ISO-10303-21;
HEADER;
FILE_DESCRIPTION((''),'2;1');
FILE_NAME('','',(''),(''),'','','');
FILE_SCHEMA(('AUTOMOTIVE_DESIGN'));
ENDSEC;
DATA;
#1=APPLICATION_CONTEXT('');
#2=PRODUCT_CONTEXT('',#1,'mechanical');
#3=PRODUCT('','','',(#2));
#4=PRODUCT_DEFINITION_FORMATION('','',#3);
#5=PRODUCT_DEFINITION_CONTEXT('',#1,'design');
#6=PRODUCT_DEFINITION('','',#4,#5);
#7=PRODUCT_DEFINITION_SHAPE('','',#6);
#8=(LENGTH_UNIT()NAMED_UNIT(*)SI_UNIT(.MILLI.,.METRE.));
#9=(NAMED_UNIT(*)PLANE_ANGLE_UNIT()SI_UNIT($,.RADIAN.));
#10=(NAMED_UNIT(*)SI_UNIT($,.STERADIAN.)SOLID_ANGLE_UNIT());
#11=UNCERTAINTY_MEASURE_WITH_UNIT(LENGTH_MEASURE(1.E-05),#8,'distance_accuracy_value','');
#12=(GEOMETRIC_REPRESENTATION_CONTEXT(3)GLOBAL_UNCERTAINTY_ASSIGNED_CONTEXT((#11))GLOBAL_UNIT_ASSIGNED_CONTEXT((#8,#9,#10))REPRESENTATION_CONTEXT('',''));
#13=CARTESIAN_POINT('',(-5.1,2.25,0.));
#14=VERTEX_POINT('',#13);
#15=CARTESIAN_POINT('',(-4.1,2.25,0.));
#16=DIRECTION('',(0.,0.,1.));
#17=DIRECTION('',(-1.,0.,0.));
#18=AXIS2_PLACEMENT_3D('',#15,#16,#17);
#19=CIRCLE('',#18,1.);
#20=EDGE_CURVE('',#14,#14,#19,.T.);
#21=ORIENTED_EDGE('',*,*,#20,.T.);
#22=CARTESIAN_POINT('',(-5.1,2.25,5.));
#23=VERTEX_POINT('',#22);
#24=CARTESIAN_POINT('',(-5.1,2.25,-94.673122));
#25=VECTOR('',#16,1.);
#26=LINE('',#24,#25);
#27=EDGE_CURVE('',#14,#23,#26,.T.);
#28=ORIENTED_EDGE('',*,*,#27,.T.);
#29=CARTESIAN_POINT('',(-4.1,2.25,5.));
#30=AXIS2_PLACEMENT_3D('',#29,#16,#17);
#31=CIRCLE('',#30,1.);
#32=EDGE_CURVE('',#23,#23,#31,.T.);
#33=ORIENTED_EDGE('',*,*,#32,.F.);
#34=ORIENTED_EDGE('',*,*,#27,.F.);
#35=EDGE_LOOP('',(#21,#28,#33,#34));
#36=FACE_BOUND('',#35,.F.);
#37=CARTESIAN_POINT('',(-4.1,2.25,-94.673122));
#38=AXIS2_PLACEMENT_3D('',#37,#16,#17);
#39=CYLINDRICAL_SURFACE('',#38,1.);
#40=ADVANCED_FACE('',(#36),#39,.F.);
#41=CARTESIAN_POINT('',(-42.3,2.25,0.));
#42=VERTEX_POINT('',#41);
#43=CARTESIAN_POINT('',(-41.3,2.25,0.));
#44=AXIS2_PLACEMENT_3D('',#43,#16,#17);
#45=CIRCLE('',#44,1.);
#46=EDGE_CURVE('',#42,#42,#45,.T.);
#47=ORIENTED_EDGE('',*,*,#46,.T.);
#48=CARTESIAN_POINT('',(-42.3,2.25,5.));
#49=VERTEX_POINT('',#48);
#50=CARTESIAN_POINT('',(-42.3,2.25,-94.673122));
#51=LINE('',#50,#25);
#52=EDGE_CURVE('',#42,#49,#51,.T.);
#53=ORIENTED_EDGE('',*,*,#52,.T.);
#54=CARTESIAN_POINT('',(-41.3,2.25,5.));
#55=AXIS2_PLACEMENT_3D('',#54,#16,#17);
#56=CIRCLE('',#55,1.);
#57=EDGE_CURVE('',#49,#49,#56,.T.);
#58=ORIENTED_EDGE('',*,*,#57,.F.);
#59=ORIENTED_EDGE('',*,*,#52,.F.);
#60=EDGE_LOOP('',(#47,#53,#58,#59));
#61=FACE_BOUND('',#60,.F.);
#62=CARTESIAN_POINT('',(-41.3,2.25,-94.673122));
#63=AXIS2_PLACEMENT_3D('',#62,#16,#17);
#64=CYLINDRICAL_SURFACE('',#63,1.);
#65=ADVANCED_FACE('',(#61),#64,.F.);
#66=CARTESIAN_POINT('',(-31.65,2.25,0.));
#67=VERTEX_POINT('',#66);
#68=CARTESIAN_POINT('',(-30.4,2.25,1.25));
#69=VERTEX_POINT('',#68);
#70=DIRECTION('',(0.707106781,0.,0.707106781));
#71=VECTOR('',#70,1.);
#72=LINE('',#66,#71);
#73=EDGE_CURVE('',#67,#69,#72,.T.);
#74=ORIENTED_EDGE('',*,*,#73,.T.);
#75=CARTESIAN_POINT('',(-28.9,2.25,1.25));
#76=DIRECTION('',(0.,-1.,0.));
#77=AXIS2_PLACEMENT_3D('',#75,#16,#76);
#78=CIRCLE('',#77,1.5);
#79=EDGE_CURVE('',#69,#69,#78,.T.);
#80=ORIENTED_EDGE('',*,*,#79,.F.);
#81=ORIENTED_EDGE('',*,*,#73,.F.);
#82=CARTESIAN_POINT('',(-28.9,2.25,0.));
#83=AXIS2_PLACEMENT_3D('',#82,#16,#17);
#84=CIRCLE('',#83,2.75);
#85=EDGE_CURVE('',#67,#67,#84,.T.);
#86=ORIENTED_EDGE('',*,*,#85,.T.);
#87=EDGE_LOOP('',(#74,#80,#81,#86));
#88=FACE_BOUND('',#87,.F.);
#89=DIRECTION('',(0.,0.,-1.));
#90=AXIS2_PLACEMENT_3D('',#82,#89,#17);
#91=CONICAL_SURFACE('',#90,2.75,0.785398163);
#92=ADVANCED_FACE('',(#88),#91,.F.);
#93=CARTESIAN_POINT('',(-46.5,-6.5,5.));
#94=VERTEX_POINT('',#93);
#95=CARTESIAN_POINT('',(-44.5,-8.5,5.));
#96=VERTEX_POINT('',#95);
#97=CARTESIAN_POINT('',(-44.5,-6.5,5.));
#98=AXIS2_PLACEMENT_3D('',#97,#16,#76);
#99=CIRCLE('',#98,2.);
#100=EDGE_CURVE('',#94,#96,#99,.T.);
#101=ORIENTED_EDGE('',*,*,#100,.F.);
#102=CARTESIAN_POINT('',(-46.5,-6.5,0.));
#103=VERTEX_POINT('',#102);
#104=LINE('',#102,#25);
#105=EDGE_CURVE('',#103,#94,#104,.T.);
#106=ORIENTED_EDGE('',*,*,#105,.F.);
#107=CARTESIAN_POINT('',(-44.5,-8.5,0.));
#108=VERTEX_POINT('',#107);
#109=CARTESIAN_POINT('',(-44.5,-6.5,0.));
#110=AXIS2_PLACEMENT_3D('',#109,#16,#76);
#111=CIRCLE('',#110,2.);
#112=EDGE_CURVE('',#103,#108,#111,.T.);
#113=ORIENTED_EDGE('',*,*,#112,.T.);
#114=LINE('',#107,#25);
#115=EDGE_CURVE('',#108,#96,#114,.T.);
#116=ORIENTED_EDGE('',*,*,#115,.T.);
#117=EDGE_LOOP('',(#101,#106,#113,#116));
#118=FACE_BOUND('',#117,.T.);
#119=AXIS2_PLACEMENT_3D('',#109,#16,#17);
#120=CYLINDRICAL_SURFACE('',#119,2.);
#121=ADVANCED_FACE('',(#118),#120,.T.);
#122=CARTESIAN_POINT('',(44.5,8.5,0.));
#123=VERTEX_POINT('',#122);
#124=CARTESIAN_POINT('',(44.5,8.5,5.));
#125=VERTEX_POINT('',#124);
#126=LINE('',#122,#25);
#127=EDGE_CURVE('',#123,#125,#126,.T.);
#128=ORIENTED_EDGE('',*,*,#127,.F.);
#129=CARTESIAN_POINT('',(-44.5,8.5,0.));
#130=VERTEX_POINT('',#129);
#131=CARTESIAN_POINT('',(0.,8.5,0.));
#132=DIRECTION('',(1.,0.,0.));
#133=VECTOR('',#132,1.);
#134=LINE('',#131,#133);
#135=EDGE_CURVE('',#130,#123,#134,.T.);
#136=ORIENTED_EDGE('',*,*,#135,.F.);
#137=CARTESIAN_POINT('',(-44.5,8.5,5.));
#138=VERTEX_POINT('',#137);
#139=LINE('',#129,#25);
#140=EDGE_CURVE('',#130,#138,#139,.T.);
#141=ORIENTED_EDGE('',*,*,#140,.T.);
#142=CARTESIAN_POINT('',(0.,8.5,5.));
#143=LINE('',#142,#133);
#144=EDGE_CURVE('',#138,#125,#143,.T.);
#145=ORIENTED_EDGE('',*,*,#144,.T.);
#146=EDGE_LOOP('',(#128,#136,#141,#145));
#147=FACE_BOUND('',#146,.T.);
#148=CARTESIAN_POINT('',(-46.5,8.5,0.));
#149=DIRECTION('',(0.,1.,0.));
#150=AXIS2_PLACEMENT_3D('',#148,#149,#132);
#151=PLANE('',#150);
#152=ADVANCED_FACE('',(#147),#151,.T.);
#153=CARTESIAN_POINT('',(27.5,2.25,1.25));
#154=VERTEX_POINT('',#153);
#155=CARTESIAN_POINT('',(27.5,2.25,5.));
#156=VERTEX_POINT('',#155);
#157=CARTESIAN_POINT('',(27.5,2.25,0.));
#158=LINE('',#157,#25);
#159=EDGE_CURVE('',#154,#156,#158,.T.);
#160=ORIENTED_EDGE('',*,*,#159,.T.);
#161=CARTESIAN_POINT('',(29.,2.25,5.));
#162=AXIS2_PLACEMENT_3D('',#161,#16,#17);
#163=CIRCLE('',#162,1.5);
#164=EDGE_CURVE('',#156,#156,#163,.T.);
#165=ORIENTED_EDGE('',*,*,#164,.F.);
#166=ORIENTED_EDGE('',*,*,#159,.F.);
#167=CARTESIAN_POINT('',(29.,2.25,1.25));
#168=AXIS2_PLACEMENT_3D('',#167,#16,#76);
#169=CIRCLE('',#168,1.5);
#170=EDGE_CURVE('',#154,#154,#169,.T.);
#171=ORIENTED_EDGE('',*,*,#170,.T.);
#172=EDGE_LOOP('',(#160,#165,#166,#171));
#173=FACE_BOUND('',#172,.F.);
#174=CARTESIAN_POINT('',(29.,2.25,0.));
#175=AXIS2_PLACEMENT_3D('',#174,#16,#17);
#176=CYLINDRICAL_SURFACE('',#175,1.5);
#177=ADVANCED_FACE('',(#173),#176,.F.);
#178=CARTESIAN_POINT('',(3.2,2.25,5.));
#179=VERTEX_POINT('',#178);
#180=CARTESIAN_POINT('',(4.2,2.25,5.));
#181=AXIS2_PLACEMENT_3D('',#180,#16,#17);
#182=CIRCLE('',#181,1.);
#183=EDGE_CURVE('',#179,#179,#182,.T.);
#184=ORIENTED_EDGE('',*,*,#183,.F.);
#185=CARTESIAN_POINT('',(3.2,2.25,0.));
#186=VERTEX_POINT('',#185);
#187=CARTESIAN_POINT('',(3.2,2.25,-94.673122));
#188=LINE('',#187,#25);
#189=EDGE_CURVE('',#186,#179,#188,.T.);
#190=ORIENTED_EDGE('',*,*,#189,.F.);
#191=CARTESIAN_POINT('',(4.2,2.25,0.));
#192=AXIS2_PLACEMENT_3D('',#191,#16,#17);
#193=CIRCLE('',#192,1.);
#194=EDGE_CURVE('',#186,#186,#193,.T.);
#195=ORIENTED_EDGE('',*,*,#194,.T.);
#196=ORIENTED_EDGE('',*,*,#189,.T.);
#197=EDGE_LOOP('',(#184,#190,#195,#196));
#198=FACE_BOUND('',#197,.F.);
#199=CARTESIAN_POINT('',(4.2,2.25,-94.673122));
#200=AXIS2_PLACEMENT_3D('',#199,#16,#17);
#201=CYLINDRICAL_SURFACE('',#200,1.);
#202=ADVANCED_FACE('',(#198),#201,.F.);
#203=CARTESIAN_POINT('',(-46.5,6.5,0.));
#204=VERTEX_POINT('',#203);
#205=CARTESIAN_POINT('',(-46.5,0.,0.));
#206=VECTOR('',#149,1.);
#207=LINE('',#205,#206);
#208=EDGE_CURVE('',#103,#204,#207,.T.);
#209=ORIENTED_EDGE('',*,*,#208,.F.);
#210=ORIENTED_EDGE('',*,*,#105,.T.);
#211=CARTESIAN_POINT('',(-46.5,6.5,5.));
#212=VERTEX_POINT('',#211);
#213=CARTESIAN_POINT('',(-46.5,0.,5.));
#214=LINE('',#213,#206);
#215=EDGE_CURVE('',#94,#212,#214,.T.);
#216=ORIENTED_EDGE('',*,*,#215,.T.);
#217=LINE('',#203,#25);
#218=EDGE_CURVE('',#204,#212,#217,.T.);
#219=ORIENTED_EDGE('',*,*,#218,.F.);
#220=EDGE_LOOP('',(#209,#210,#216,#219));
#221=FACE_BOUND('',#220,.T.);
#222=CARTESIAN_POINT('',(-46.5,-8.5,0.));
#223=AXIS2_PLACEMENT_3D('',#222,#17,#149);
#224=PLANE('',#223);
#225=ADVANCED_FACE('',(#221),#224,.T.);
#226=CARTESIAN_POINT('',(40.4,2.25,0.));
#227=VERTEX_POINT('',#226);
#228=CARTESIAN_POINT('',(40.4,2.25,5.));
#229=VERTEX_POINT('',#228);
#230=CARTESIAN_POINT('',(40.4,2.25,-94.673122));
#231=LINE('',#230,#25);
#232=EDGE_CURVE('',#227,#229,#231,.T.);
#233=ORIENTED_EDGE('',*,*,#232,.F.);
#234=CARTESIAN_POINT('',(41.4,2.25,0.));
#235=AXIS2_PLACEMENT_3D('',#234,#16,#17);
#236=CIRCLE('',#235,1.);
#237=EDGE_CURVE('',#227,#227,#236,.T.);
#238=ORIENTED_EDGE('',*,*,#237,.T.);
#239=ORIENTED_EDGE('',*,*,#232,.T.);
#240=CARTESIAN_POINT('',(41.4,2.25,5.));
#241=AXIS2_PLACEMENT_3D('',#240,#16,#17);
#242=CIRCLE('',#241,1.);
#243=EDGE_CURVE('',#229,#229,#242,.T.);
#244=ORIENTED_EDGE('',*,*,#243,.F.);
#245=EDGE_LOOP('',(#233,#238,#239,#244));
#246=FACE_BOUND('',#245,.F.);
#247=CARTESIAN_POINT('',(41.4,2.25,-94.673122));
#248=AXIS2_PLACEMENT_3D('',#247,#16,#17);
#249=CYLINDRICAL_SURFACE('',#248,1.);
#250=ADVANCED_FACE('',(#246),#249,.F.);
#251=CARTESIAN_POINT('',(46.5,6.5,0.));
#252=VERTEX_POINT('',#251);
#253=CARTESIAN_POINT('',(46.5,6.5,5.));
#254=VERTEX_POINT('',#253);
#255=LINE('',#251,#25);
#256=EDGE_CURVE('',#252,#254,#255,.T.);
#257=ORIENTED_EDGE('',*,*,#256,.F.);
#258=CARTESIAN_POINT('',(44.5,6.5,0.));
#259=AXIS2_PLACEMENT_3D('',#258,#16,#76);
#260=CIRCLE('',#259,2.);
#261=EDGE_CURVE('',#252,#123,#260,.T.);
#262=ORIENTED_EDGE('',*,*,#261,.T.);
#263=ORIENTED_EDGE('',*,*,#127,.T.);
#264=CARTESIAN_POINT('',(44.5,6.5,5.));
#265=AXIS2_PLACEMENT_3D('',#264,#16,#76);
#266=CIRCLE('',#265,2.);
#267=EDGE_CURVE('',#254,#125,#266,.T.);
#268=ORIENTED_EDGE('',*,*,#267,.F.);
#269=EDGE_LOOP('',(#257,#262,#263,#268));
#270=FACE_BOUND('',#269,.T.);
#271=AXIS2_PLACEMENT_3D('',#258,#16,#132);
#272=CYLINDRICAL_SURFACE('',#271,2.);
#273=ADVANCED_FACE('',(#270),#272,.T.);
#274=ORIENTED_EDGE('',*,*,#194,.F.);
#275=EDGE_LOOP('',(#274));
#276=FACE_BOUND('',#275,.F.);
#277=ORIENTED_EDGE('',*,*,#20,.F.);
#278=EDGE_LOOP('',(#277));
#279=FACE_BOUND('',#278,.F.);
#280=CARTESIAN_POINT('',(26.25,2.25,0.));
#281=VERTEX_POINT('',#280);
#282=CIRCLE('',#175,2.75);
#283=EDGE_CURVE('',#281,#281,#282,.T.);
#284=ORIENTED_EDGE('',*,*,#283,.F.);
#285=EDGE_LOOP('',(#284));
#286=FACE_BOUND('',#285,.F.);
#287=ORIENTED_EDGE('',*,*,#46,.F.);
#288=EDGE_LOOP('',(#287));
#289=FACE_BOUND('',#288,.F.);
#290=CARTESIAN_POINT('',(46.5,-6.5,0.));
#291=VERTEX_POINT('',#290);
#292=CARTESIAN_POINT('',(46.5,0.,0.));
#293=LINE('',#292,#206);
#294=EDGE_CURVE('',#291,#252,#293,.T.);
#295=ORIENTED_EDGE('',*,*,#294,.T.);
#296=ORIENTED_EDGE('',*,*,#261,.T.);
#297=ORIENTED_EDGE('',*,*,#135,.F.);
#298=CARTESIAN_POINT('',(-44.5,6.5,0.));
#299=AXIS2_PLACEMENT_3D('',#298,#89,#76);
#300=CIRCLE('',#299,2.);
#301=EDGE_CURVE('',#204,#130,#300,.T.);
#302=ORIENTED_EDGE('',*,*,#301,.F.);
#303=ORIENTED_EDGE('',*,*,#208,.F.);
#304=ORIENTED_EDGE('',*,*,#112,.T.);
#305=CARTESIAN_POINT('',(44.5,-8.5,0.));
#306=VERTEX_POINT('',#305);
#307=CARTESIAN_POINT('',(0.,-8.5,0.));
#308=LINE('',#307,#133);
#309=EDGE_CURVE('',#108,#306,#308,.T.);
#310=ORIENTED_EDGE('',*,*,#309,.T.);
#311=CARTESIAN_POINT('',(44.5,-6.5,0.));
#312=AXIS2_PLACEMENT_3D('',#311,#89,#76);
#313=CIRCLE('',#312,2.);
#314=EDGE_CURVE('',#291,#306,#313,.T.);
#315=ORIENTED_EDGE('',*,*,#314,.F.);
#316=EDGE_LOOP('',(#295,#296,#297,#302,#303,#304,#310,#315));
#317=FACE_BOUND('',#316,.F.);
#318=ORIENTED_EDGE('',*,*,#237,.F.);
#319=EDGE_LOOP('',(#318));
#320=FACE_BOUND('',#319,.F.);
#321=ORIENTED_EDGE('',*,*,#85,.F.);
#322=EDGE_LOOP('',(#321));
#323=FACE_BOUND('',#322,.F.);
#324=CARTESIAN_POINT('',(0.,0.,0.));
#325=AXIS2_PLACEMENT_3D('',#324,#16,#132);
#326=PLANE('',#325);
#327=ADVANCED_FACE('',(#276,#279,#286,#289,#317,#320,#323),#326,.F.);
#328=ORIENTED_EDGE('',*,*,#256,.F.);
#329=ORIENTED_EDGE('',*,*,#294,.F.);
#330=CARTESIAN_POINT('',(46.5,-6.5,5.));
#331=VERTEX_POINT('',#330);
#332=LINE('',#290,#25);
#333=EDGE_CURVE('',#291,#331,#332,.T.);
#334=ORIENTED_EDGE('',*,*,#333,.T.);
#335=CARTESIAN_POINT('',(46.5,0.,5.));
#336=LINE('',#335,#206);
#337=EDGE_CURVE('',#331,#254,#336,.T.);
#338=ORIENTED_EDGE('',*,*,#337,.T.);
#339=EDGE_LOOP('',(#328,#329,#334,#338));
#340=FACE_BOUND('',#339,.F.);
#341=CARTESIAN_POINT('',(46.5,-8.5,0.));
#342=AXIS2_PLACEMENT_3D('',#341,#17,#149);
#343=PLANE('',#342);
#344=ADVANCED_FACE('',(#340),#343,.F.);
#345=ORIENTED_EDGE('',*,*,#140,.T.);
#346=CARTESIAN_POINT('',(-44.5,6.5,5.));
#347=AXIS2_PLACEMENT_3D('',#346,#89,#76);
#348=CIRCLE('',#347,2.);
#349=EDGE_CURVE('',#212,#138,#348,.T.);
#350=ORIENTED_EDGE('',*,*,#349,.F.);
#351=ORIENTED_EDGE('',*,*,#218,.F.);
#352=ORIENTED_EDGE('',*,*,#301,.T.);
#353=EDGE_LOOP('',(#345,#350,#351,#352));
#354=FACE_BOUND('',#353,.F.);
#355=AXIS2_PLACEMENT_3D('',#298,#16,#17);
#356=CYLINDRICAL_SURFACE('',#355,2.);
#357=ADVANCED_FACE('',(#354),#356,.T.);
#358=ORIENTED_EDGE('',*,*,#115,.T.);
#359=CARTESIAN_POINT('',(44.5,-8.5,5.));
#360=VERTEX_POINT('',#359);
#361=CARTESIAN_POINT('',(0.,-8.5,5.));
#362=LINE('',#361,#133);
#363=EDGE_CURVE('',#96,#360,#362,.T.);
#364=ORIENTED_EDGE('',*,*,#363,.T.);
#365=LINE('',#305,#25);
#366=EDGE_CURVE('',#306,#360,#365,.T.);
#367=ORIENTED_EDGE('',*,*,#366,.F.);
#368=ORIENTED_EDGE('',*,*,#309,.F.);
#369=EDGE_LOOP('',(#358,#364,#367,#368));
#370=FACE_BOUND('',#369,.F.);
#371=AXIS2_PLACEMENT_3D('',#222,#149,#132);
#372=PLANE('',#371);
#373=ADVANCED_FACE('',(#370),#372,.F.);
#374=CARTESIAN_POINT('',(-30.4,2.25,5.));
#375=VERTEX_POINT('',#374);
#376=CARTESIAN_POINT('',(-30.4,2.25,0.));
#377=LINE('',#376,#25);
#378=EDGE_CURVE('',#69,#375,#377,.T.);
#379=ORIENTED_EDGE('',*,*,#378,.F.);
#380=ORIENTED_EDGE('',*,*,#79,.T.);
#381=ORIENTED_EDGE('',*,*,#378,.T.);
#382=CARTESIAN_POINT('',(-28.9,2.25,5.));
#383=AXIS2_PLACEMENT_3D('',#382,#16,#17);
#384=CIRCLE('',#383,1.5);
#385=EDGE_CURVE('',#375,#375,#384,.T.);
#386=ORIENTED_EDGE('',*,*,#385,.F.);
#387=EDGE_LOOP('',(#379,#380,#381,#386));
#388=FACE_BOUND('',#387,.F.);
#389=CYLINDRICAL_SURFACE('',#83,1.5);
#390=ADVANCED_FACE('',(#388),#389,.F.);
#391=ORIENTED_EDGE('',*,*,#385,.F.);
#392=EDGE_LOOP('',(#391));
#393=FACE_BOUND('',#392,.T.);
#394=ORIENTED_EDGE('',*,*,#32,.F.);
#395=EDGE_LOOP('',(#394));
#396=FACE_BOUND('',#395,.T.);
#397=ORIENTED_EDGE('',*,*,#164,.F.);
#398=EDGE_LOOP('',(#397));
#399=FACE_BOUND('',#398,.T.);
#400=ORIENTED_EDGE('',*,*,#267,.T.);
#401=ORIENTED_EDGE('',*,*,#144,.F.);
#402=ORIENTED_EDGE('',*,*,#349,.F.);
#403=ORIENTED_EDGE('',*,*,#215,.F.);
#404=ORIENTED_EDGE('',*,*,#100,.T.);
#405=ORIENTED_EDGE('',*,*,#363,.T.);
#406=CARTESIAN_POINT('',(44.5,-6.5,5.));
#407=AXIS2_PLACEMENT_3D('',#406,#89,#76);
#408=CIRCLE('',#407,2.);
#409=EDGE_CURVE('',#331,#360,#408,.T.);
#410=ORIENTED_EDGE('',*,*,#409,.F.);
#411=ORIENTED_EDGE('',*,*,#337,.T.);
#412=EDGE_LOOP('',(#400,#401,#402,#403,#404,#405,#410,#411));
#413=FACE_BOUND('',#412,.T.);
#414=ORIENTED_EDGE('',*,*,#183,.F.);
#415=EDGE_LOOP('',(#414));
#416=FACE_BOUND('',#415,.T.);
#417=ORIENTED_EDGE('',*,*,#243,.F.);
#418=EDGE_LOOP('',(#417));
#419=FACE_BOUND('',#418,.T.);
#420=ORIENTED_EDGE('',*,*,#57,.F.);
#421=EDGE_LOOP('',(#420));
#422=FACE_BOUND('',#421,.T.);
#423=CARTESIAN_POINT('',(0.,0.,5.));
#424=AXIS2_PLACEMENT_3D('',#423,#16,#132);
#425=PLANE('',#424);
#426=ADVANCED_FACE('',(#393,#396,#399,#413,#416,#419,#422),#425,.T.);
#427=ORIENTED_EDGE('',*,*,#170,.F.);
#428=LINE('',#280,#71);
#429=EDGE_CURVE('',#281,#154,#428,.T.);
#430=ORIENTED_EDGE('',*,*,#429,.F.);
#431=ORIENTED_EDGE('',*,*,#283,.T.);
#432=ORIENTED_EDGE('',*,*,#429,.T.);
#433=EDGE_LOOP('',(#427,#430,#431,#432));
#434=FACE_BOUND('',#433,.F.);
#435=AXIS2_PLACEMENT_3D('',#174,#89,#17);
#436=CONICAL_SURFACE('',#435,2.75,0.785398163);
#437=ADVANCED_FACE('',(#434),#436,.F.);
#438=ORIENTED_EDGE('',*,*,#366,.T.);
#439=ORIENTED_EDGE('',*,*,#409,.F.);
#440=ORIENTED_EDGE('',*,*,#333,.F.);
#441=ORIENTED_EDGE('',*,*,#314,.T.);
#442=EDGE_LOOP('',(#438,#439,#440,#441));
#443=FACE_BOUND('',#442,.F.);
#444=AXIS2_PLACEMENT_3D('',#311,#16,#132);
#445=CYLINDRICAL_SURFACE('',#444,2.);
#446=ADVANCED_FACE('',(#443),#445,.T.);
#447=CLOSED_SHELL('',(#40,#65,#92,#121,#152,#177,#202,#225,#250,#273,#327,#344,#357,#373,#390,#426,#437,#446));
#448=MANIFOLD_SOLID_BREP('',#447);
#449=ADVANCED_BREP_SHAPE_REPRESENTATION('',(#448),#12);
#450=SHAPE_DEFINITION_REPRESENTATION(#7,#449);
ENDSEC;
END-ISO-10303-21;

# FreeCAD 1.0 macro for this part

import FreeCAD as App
import Part
import Sketcher

V = App.Vector


def edges_at(feature, points):
    """Names of the edges that pass closest to the given points."""
    edges = feature.Shape.Edges
    near = lambda p: min(range(len(edges)), key=lambda i: edges[i].distToShape(Part.Vertex(*p))[0])
    return sorted({f"Edge{near(p) + 1}" for p in points})


def add_polygon(sketch, points):
    """Adds a closed chain of lines whose ends are joined by coincident constraints."""
    first, n = sketch.GeometryCount, len(points)
    for a, b in zip(points, points[1:] + points[:1]):
        sketch.addGeometry(Part.LineSegment(App.Vector(*a, 0), App.Vector(*b, 0)), False)
    for i in range(n):
        sketch.addConstraint(Sketcher.Constraint("Coincident", first + i, 2, first + (i + 1) % n, 1))

doc = App.newDocument("Part")
body = doc.addObject("PartDesign::Body", "Body")

# Sketch on XY plane
sketch1 = doc.addObject("Sketcher::SketchObject", "Sketch")
body.addObject(sketch1)
sketch1.AttachmentSupport = (doc.XY_Plane, [""])
sketch1.MapMode = "FlatFace"
add_polygon(sketch1, [(-46, 8), (-46, -8), (46, -8), (46, 8)])  # lines 0-3
sketch1.addConstraint(Sketcher.Constraint("Vertical", 0))
sketch1.addConstraint(Sketcher.Constraint("Horizontal", 1))
sketch1.addConstraint(Sketcher.Constraint("Vertical", 2))
sketch1.addConstraint(Sketcher.Constraint("Horizontal", 3))
sketch1.addConstraint(Sketcher.Constraint("Symmetric", 0, 2, 2, 2, -1, 1))
sketch1.addConstraint(Sketcher.Constraint("DistanceX", 1, 1, 1, 2, 93.0))
sketch1.addConstraint(Sketcher.Constraint("DistanceY", 0, 2, 0, 1, 17.0))
pad1 = doc.addObject("PartDesign::Pad", "Pad")
body.addObject(pad1)
pad1.Profile = sketch1
pad1.Length = 5

# Sketch on XY plane
sketch2 = doc.addObject("Sketcher::SketchObject", "Sketch001")
body.addObject(sketch2)
sketch2.AttachmentSupport = (doc.XY_Plane, [""])
sketch2.MapMode = "FlatFace"
sketch2.addGeometry(Part.Circle(V(-41.3, 2.2, 0), V(0, 0, 1), 1), False)
sketch2.addGeometry(Part.Circle(V(-4.1, 2.2, 0), V(0, 0, 1), 1), False)
sketch2.addGeometry(Part.Circle(V(4.2, 2.2, 0), V(0, 0, 1), 1), False)
sketch2.addGeometry(Part.Circle(V(41.4, 2.2, 0), V(0, 0, 1), 1), False)
sketch2.addConstraint(Sketcher.Constraint("Equal", 0, 1))
sketch2.addConstraint(Sketcher.Constraint("Equal", 1, 2))
sketch2.addConstraint(Sketcher.Constraint("Equal", 2, 3))
sketch2.addConstraint(Sketcher.Constraint("Horizontal", 0, 3, 1, 3))
sketch2.addConstraint(Sketcher.Constraint("Horizontal", 1, 3, 2, 3))
sketch2.addConstraint(Sketcher.Constraint("Horizontal", 2, 3, 3, 3))
sketch2.addConstraint(Sketcher.Constraint("Diameter", 0, 2.0))
sketch2.addConstraint(Sketcher.Constraint("DistanceX", 0, 3, -1, 1, 41.3))
sketch2.addConstraint(Sketcher.Constraint("DistanceX", 1, 3, -1, 1, 4.1))
sketch2.addConstraint(Sketcher.Constraint("DistanceX", -1, 1, 2, 3, 4.2))
sketch2.addConstraint(Sketcher.Constraint("DistanceX", -1, 1, 3, 3, 41.4))
sketch2.addConstraint(Sketcher.Constraint("DistanceY", -1, 1, 0, 3, 2.25))
doc.recompute()
hole = doc.addObject("PartDesign::Hole", "Hole")
body.addObject(hole)
hole.Profile = sketch2
hole.ThreadType = "None"
hole.Diameter = 2
hole.DepthType = "ThroughAll"
hole.Reversed = True

# Sketch on XY plane
sketch3 = doc.addObject("Sketcher::SketchObject", "Sketch002")
body.addObject(sketch3)
sketch3.AttachmentSupport = (doc.XY_Plane, [""])
sketch3.MapMode = "FlatFace"
sketch3.addGeometry(Part.Circle(V(29, 2.2, 0), V(0, 0, 1), 1.5), False)
sketch3.addGeometry(Part.Circle(V(-28.9, 2.2, 0), V(0, 0, 1), 1.5), False)
sketch3.addConstraint(Sketcher.Constraint("Equal", 0, 1))
sketch3.addConstraint(Sketcher.Constraint("Horizontal", 0, 3, 1, 3))
sketch3.addConstraint(Sketcher.Constraint("Diameter", 0, 3.0))
sketch3.addConstraint(Sketcher.Constraint("DistanceX", -1, 1, 0, 3, 29.0))
sketch3.addConstraint(Sketcher.Constraint("DistanceX", 1, 3, -1, 1, 28.9))
sketch3.addConstraint(Sketcher.Constraint("DistanceY", -1, 1, 0, 3, 2.25))
doc.recompute()
hole2 = doc.addObject("PartDesign::Hole", "Hole001")
body.addObject(hole2)
hole2.Profile = sketch3
hole2.ThreadType = "None"
hole2.Diameter = 3
hole2.DepthType = "ThroughAll"
hole2.HoleCutType = "Countersink"
hole2.HoleCutDiameter = 5.5
hole2.HoleCutCountersinkAngle = 90
hole2.Reversed = True
doc.recompute()

fillet = doc.addObject("PartDesign::Fillet", "Fillet")
body.addObject(fillet)
fillet.Base = (hole2, edges_at(hole2, [
    (46.5, 8.5, 2.5),
    (46.5, -8.5, 2.5),
    (-46.5, 8.5, 2.5),
    (-46.5, -8.5, 2.5),
]))
fillet.Radius = 2

doc.recompute()
